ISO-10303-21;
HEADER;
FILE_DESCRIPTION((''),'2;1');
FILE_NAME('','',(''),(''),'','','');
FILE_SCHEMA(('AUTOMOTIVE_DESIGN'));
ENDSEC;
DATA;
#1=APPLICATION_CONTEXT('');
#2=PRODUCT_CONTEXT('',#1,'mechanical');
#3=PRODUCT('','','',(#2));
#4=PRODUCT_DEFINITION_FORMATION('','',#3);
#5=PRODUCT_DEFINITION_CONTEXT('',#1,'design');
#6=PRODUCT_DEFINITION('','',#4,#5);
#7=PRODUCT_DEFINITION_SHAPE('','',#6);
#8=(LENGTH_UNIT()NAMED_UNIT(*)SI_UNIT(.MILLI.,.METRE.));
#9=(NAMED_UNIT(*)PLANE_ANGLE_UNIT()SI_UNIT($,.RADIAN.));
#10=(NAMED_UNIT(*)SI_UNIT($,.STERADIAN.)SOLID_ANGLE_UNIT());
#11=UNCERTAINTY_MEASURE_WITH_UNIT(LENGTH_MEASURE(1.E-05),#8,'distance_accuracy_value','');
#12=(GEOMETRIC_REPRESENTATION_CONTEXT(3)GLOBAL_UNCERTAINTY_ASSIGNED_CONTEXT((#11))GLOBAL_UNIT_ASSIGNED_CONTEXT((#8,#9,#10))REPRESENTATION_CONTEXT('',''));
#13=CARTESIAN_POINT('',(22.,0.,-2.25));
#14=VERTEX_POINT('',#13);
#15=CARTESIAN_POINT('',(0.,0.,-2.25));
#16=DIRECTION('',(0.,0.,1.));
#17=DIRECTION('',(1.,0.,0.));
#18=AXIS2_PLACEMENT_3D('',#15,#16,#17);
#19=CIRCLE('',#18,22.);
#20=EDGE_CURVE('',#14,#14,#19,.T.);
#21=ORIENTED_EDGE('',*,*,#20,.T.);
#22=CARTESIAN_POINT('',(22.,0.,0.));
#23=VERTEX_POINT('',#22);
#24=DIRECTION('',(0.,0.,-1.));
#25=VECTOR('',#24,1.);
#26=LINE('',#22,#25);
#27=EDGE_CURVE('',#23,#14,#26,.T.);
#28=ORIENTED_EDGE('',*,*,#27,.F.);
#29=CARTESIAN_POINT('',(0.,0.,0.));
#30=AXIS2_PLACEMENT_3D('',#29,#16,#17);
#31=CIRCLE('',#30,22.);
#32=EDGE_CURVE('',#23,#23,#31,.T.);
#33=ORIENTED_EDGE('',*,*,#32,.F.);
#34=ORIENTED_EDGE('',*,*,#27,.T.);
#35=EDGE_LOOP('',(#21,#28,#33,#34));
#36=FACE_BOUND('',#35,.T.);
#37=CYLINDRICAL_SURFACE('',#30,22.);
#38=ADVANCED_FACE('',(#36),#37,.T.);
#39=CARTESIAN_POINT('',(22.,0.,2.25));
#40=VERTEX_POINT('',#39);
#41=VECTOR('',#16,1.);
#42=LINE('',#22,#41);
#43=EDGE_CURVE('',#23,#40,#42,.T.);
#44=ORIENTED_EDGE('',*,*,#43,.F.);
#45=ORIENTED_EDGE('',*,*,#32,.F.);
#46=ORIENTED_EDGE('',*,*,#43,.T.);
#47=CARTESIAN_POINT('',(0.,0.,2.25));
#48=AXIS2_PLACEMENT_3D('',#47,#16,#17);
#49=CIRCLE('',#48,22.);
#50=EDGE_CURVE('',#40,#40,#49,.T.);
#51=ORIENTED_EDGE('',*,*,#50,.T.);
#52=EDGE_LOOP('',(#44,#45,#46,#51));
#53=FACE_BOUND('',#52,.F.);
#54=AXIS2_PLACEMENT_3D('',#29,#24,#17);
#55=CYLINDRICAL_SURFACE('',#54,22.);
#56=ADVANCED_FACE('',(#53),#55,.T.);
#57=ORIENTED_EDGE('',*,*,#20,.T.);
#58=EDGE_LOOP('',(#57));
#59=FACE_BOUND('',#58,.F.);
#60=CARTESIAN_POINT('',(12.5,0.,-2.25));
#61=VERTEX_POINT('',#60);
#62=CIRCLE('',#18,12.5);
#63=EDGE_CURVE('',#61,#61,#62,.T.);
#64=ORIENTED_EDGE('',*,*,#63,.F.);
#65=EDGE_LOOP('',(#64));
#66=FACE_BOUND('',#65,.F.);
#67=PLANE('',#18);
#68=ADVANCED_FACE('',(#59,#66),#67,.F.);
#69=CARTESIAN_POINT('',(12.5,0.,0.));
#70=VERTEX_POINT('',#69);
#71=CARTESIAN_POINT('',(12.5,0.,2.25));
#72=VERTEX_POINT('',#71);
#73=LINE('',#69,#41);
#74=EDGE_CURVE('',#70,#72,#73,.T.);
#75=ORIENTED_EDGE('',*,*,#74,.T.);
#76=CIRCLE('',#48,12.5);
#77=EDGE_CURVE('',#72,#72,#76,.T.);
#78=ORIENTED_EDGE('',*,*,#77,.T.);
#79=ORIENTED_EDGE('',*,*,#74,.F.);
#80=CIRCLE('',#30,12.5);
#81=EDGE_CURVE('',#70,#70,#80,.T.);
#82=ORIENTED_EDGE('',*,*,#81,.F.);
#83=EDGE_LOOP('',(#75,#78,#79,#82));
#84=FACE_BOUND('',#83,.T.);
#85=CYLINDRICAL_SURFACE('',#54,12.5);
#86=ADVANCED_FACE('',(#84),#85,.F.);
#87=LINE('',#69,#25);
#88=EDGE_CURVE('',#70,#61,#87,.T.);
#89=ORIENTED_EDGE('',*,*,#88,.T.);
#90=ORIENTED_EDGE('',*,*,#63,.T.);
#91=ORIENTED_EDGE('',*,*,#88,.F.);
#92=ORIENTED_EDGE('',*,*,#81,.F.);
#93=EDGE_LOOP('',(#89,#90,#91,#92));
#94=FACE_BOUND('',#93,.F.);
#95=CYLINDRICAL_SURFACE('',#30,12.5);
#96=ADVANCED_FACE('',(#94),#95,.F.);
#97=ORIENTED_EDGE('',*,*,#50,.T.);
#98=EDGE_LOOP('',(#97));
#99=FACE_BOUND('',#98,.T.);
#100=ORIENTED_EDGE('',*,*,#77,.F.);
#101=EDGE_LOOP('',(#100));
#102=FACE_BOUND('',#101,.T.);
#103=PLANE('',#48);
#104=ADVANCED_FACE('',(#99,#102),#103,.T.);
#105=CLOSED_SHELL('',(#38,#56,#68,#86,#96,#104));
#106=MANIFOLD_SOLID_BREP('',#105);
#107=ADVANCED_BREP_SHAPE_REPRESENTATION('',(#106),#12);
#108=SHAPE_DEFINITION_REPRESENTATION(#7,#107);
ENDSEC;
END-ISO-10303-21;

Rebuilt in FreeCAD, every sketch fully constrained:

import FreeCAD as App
import Part
import Sketcher
from FreeCAD import Vector
Q = App.Units.Quantity

doc = App.newDocument("Part")
body = doc.addObject("PartDesign::Body", "Body")

# Sketch on XY plane
sketch1 = body.newObject("Sketcher::SketchObject", "Sketch")
sketch1.AttachmentSupport = (doc.getObject("XY_Plane"), [""])
sketch1.MapMode = "FlatFace"
sketch1.addGeometry([
    Part.Circle(Vector(0, 0, 0), Vector(0, 0, 1), 22),
    Part.Circle(Vector(0, 0, 0), Vector(0, 0, 1), 12),
], False)
sketch1.addConstraint([
    Sketcher.Constraint("Coincident", 0, 3, -1, 1),
    Sketcher.Constraint("Coincident", 1, 3, -1, 1),
    Sketcher.Constraint("Diameter", 0, Q("44 mm")),
    Sketcher.Constraint("Diameter", 1, Q("25 mm")),
])
pad1 = body.newObject("PartDesign::Pad", "Pad")
pad1.Profile = sketch1
pad1.Length = 4.5
pad1.Midplane = True

doc.recompute()
